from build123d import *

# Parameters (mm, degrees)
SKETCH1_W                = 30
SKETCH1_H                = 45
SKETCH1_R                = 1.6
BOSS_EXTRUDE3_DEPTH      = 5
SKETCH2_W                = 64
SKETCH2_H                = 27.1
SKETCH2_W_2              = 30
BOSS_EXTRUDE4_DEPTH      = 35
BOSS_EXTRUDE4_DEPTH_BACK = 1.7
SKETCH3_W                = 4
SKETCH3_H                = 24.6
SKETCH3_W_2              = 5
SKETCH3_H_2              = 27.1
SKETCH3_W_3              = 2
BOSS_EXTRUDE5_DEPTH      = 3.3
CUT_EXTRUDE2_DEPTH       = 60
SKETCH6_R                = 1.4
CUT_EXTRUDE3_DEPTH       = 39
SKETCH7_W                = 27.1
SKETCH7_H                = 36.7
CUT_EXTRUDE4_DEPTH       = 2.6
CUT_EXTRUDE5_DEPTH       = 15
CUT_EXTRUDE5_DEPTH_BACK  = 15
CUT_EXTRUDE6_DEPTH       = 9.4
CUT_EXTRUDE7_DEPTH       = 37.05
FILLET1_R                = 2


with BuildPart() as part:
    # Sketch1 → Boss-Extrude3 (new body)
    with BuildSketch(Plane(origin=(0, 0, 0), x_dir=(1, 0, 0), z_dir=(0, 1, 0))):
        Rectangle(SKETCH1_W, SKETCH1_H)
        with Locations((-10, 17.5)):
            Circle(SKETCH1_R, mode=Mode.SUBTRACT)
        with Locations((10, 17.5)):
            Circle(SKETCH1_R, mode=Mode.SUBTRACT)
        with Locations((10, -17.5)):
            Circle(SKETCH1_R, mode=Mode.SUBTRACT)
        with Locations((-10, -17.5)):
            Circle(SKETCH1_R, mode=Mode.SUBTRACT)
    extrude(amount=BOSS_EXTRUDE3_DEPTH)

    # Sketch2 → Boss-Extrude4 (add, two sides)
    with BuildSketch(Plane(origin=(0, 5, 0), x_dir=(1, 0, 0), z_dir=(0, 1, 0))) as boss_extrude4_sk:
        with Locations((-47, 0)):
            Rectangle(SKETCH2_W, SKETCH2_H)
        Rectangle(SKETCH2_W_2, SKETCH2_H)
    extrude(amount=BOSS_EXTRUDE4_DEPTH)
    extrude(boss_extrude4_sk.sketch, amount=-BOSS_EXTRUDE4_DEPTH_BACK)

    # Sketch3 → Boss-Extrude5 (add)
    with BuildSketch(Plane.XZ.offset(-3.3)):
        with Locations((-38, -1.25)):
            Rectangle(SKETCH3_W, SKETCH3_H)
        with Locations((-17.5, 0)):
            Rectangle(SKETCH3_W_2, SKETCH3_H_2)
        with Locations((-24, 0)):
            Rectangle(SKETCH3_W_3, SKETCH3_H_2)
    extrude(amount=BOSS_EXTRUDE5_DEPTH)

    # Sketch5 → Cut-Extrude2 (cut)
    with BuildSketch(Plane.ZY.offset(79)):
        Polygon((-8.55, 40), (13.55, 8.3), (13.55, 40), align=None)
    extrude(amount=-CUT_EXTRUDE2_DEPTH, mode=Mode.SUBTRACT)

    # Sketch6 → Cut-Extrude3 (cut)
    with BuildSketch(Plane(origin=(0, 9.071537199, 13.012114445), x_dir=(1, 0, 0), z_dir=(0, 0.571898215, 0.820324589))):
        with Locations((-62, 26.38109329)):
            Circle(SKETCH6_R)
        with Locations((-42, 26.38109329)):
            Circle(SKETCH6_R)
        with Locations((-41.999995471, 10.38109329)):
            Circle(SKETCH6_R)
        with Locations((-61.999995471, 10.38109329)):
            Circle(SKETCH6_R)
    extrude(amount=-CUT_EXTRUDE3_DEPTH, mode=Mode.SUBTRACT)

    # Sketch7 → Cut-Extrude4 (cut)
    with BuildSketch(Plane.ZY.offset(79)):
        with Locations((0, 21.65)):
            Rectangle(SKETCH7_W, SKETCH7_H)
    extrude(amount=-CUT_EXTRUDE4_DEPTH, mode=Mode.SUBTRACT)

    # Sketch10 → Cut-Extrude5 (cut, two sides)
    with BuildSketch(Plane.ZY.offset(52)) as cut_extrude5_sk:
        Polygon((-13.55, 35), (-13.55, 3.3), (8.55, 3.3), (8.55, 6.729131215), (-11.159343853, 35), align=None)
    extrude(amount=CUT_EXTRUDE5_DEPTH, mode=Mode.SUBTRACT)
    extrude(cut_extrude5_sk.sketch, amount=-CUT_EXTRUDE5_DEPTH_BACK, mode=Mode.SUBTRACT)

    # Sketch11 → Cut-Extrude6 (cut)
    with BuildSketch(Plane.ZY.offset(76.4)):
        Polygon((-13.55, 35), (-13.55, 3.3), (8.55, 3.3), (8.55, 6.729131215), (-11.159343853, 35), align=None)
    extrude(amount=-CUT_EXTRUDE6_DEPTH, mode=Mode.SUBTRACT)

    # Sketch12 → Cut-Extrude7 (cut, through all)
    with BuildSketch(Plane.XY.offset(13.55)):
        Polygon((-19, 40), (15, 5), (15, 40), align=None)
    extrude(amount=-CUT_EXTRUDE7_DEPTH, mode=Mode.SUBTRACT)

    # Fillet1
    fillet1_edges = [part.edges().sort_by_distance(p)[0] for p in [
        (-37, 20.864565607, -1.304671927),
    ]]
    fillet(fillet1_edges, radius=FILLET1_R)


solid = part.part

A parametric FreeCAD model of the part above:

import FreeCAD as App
import Part
import Sketcher
from FreeCAD import Vector


def edges_at(feature, points):
    """Names of the edges that pass closest to the given points."""
    edges = feature.Shape.Edges
    near = lambda p: min(range(len(edges)), key=lambda i: edges[i].distToShape(Part.Vertex(*p))[0])
    return sorted({f"Edge{near(p) + 1}" for p in points})

doc = App.newDocument("Part")
body = doc.addObject("PartDesign::Body", "Body")

sketch1 = body.newObject("Sketcher::SketchObject", "Sketch")
sketch1.AttachmentSupport = (doc.getObject("XZ_Plane"), [""])
sketch1.MapMode = "FlatFace"
sketch1.addGeometry(Part.LineSegment(Vector(-15, -22.5, 0), Vector(-15, 22.5, 0)), False)
sketch1.addGeometry(Part.LineSegment(Vector(-15, 22.5, 0), Vector(15, 22.5, 0)), False)
sketch1.addGeometry(Part.LineSegment(Vector(15, 22.5, 0), Vector(15, -22.5, 0)), False)
sketch1.addGeometry(Part.LineSegment(Vector(15, -22.5, 0), Vector(-15, -22.5, 0)), False)
sketch1.addGeometry(Part.Circle(Vector(-10, 17.5, 0), Vector(0, 0, 1), 1.6), False)
sketch1.addGeometry(Part.Circle(Vector(10, 17.5, 0), Vector(0, 0, 1), 1.6), False)
sketch1.addGeometry(Part.Circle(Vector(-10, -17.5, 0), Vector(0, 0, 1), 1.6), False)
sketch1.addGeometry(Part.Circle(Vector(10, -17.5, 0), Vector(0, 0, 1), 1.6), False)
sketch1.addConstraint(Sketcher.Constraint("Coincident", 0, 2, 1, 1))
sketch1.addConstraint(Sketcher.Constraint("Coincident", 1, 2, 2, 1))
sketch1.addConstraint(Sketcher.Constraint("Coincident", 2, 2, 3, 1))
sketch1.addConstraint(Sketcher.Constraint("Coincident", 3, 2, 0, 1))
sketch1.addConstraint(Sketcher.Constraint("Vertical", 0))
sketch1.addConstraint(Sketcher.Constraint("Horizontal", 1))
sketch1.addConstraint(Sketcher.Constraint("Vertical", 2))
sketch1.addConstraint(Sketcher.Constraint("Horizontal", 3))
sketch1.addConstraint(Sketcher.Constraint("Equal", 4, 5))
sketch1.addConstraint(Sketcher.Constraint("Equal", 5, 6))
sketch1.addConstraint(Sketcher.Constraint("Equal", 6, 7))
sketch1.addConstraint(Sketcher.Constraint("Symmetric", 5, 3, 6, 3, -1, 1))
sketch1.addConstraint(Sketcher.Constraint("Symmetric", 4, 3, 7, 3, -1, 1))
sketch1.addConstraint(Sketcher.Constraint("Symmetric", 0, 2, 2, 2, -1, 1))
sketch1.addConstraint(Sketcher.Constraint("Symmetric", 4, 3, 5, 3, -2))
sketch1.addConstraint(Sketcher.Constraint("Diameter", 4, 3.2))
sketch1.addConstraint(Sketcher.Constraint("DistanceX", 1, 1, 1, 2, 30.0))
sketch1.addConstraint(Sketcher.Constraint("DistanceY", 0, 1, 0, 2, 45.0))
sketch1.addConstraint(Sketcher.Constraint("DistanceX", 4, 3, -1, 1, 10.0))
sketch1.addConstraint(Sketcher.Constraint("DistanceY", 6, 3, 4, 3, 35.0))
pad1 = body.newObject("PartDesign::Pad", "Pad")
pad1.Profile = sketch1
pad1.Length = 5
pad1.Reversed = True

sketch2 = body.newObject("Sketcher::SketchObject", "Sketch001")
sketch2.AttachmentSupport = (doc.getObject("XZ_Plane"), [""])
sketch2.MapMode = "FlatFace"
sketch2.AttachmentOffset = App.Placement(Vector(0, 0, -5), App.Rotation())
sketch2.addGeometry(Part.LineSegment(Vector(-79, -13.55, 0), Vector(-79, 13.55, 0)), False)
sketch2.addGeometry(Part.LineSegment(Vector(-79, 13.55, 0), Vector(15, 13.55, 0)), False)
sketch2.addGeometry(Part.LineSegment(Vector(15, 13.55, 0), Vector(15, -13.55, 0)), False)
sketch2.addGeometry(Part.LineSegment(Vector(15, -13.55, 0), Vector(-79, -13.55, 0)), False)
sketch2.addConstraint(Sketcher.Constraint("Coincident", 0, 2, 1, 1))
sketch2.addConstraint(Sketcher.Constraint("Coincident", 1, 2, 2, 1))
sketch2.addConstraint(Sketcher.Constraint("Coincident", 2, 2, 3, 1))
sketch2.addConstraint(Sketcher.Constraint("Coincident", 3, 2, 0, 1))
sketch2.addConstraint(Sketcher.Constraint("Vertical", 0))
sketch2.addConstraint(Sketcher.Constraint("Horizontal", 1))
sketch2.addConstraint(Sketcher.Constraint("Vertical", 2))
sketch2.addConstraint(Sketcher.Constraint("Horizontal", 3))
sketch2.addConstraint(Sketcher.Constraint("DistanceX", 1, 1, 1, 2, 94.0))
sketch2.addConstraint(Sketcher.Constraint("DistanceY", 0, 1, 0, 2, 27.1))
sketch2.addConstraint(Sketcher.Constraint("DistanceX", 0, 2, -1, 1, 79.0))
sketch2.addConstraint(Sketcher.Constraint("DistanceY", -1, 1, 0, 2, 13.55))
pad2 = body.newObject("PartDesign::Pad", "Pad001")
pad2.Profile = sketch2
pad2.Type = "TwoLengths"
pad2.Length = 35
pad2.Length2 = 1.7
pad2.Reversed = True

sketch3 = body.newObject("Sketcher::SketchObject", "Sketch002")
sketch3.AttachmentSupport = (doc.getObject("XZ_Plane"), [""])
sketch3.MapMode = "FlatFace"
sketch3.AttachmentOffset = App.Placement(Vector(0, 0, -3.3), App.Rotation())
sketch3.addGeometry(Part.LineSegment(Vector(-40, 11.05, 0), Vector(-40, -13.55, 0)), False)
sketch3.addGeometry(Part.LineSegment(Vector(-40, -13.55, 0), Vector(-36, -13.55, 0)), False)
sketch3.addGeometry(Part.LineSegment(Vector(-36, -13.55, 0), Vector(-36, 11.05, 0)), False)
sketch3.addGeometry(Part.LineSegment(Vector(-36, 11.05, 0), Vector(-40, 11.05, 0)), False)
sketch3.addGeometry(Part.LineSegment(Vector(-20, 13.55, 0), Vector(-20, -13.55, 0)), False)
sketch3.addGeometry(Part.LineSegment(Vector(-20, -13.55, 0), Vector(-15, -13.55, 0)), False)
sketch3.addGeometry(Part.LineSegment(Vector(-15, -13.55, 0), Vector(-15, 13.55, 0)), False)
sketch3.addGeometry(Part.LineSegment(Vector(-15, 13.55, 0), Vector(-20, 13.55, 0)), False)
sketch3.addGeometry(Part.LineSegment(Vector(-25, 13.55, 0), Vector(-25, -13.55, 0)), False)
sketch3.addGeometry(Part.LineSegment(Vector(-25, -13.55, 0), Vector(-23, -13.55, 0)), False)
sketch3.addGeometry(Part.LineSegment(Vector(-23, -13.55, 0), Vector(-23, 13.55, 0)), False)
sketch3.addGeometry(Part.LineSegment(Vector(-23, 13.55, 0), Vector(-25, 13.55, 0)), False)
sketch3.addConstraint(Sketcher.Constraint("Coincident", 0, 2, 1, 1))
sketch3.addConstraint(Sketcher.Constraint("Coincident", 1, 2, 2, 1))
sketch3.addConstraint(Sketcher.Constraint("Coincident", 2, 2, 3, 1))
sketch3.addConstraint(Sketcher.Constraint("Coincident", 3, 2, 0, 1))
sketch3.addConstraint(Sketcher.Constraint("Coincident", 4, 2, 5, 1))
sketch3.addConstraint(Sketcher.Constraint("Coincident", 5, 2, 6, 1))
sketch3.addConstraint(Sketcher.Constraint("Coincident", 6, 2, 7, 1))
sketch3.addConstraint(Sketcher.Constraint("Coincident", 7, 2, 4, 1))
sketch3.addConstraint(Sketcher.Constraint("Coincident", 8, 2, 9, 1))
sketch3.addConstraint(Sketcher.Constraint("Coincident", 9, 2, 10, 1))
sketch3.addConstraint(Sketcher.Constraint("Coincident", 10, 2, 11, 1))
sketch3.addConstraint(Sketcher.Constraint("Coincident", 11, 2, 8, 1))
sketch3.addConstraint(Sketcher.Constraint("Vertical", 0))
sketch3.addConstraint(Sketcher.Constraint("Horizontal", 1))
sketch3.addConstraint(Sketcher.Constraint("Vertical", 2))
sketch3.addConstraint(Sketcher.Constraint("Horizontal", 3))
sketch3.addConstraint(Sketcher.Constraint("Vertical", 4))
sketch3.addConstraint(Sketcher.Constraint("Horizontal", 5))
sketch3.addConstraint(Sketcher.Constraint("Vertical", 6))
sketch3.addConstraint(Sketcher.Constraint("Horizontal", 7))
sketch3.addConstraint(Sketcher.Constraint("Vertical", 8))
sketch3.addConstraint(Sketcher.Constraint("Horizontal", 9))
sketch3.addConstraint(Sketcher.Constraint("Vertical", 10))
sketch3.addConstraint(Sketcher.Constraint("Horizontal", 11))
sketch3.addConstraint(Sketcher.Constraint("Horizontal", 1, 2, 4, 2))
sketch3.addConstraint(Sketcher.Constraint("Horizontal", 5, 2, 8, 2))
sketch3.addConstraint(Sketcher.Constraint("Horizontal", 7, 2, 10, 2))
sketch3.addConstraint(Sketcher.Constraint("DistanceX", 1, 1, 1, 2, 4.0))
sketch3.addConstraint(Sketcher.Constraint("DistanceX", 5, 1, 5, 2, 5.0))
sketch3.addConstraint(Sketcher.Constraint("DistanceX", 9, 1, 9, 2, 2.0))
sketch3.addConstraint(Sketcher.Constraint("DistanceY", 0, 2, 0, 1, 24.6))
sketch3.addConstraint(Sketcher.Constraint("DistanceY", 4, 2, 4, 1, 27.1))
sketch3.addConstraint(Sketcher.Constraint("DistanceX", 0, 2, -1, 1, 40.0))
sketch3.addConstraint(Sketcher.Constraint("DistanceX", 4, 2, -1, 1, 20.0))
sketch3.addConstraint(Sketcher.Constraint("DistanceX", 8, 2, -1, 1, 25.0))
sketch3.addConstraint(Sketcher.Constraint("DistanceY", 0, 2, -1, 1, 13.55))
pad3 = body.newObject("PartDesign::Pad", "Pad002")
pad3.Profile = sketch3
pad3.Length = 3.3

sketch4 = body.newObject("Sketcher::SketchObject", "Sketch003")
sketch4.AttachmentSupport = (doc.getObject("YZ_Plane"), [""])
sketch4.MapMode = "FlatFace"
sketch4.AttachmentOffset = App.Placement(Vector(0, 0, -79), App.Rotation())
sketch4.addGeometry(Part.LineSegment(Vector(40, -8.55, 0), Vector(8.3, 13.55, 0)), False)
sketch4.addGeometry(Part.LineSegment(Vector(8.3, 13.55, 0), Vector(40, 13.55, 0)), False)
sketch4.addGeometry(Part.LineSegment(Vector(40, 13.55, 0), Vector(40, -8.55, 0)), False)
sketch4.addConstraint(Sketcher.Constraint("Coincident", 0, 2, 1, 1))
sketch4.addConstraint(Sketcher.Constraint("Coincident", 1, 2, 2, 1))
sketch4.addConstraint(Sketcher.Constraint("Coincident", 2, 2, 0, 1))
sketch4.addConstraint(Sketcher.Constraint("Horizontal", 1))
sketch4.addConstraint(Sketcher.Constraint("Vertical", 2))
sketch4.addConstraint(Sketcher.Constraint("DistanceX", 1, 1, 1, 2, 31.7))
sketch4.addConstraint(Sketcher.Constraint("DistanceY", 2, 2, 2, 1, 22.1))
sketch4.addConstraint(Sketcher.Constraint("DistanceX", -1, 1, 1, 2, 40.0))
sketch4.addConstraint(Sketcher.Constraint("DistanceY", -1, 1, 0, 2, 13.55))
pocket1 = body.newObject("PartDesign::Pocket", "Pocket")
pocket1.Profile = sketch4
pocket1.Length = 60
pocket1.Reversed = True

sketch5 = body.newObject("Sketcher::SketchObject", "Sketch004")
sketch5.Placement = App.Placement(Vector(0, 9.071537, 13.012114), App.Rotation(Vector(1, 0, 0), Vector(0, 0.820324589, -0.571898215), Vector(0, 0.571898215, 0.820324589), "ZXY"))
sketch5.addGeometry(Part.Circle(Vector(-62, 26.381093, 0), Vector(0, 0, 1), 1.4), False)
sketch5.addGeometry(Part.Circle(Vector(-42, 26.381093, 0), Vector(0, 0, 1), 1.4), False)
sketch5.addGeometry(Part.Circle(Vector(-41.999995, 10.381093, 0), Vector(0, 0, 1), 1.4), False)
sketch5.addGeometry(Part.Circle(Vector(-61.999995, 10.381093, 0), Vector(0, 0, 1), 1.4), False)
sketch5.addConstraint(Sketcher.Constraint("Equal", 0, 1))
sketch5.addConstraint(Sketcher.Constraint("Equal", 1, 2))
sketch5.addConstraint(Sketcher.Constraint("Equal", 2, 3))
sketch5.addConstraint(Sketcher.Constraint("Horizontal", 0, 3, 1, 3))
sketch5.addConstraint(Sketcher.Constraint("Horizontal", 2, 3, 3, 3))
sketch5.addConstraint(Sketcher.Constraint("Diameter", 0, 2.8))
sketch5.addConstraint(Sketcher.Constraint("DistanceX", 0, 3, -1, 1, 62.0))
sketch5.addConstraint(Sketcher.Constraint("DistanceX", 1, 3, -1, 1, 42.0))
sketch5.addConstraint(Sketcher.Constraint("DistanceY", 2, 3, 1, 3, 16.0))
sketch5.addConstraint(Sketcher.Constraint("DistanceX", 3, 3, 2, 3, 20.0))
sketch5.addConstraint(Sketcher.Constraint("DistanceY", -1, 1, 0, 3, 26.381093))
sketch5.addConstraint(Sketcher.Constraint("DistanceX", 2, 3, -1, 1, 41.999995))
pocket2 = body.newObject("PartDesign::Pocket", "Pocket001")
pocket2.Profile = sketch5
pocket2.Length = 39

sketch6 = body.newObject("Sketcher::SketchObject", "Sketch005")
sketch6.AttachmentSupport = (doc.getObject("YZ_Plane"), [""])
sketch6.MapMode = "FlatFace"
sketch6.AttachmentOffset = App.Placement(Vector(0, 0, -79), App.Rotation())
sketch6.addGeometry(Part.LineSegment(Vector(40, -13.55, 0), Vector(3.3, -13.55, 0)), False)
sketch6.addGeometry(Part.LineSegment(Vector(3.3, -13.55, 0), Vector(3.3, 13.55, 0)), False)
sketch6.addGeometry(Part.LineSegment(Vector(3.3, 13.55, 0), Vector(40, 13.55, 0)), False)
sketch6.addGeometry(Part.LineSegment(Vector(40, 13.55, 0), Vector(40, -13.55, 0)), False)
sketch6.addConstraint(Sketcher.Constraint("Coincident", 0, 2, 1, 1))
sketch6.addConstraint(Sketcher.Constraint("Coincident", 1, 2, 2, 1))
sketch6.addConstraint(Sketcher.Constraint("Coincident", 2, 2, 3, 1))
sketch6.addConstraint(Sketcher.Constraint("Coincident", 3, 2, 0, 1))
sketch6.addConstraint(Sketcher.Constraint("Horizontal", 0))
sketch6.addConstraint(Sketcher.Constraint("Vertical", 1))
sketch6.addConstraint(Sketcher.Constraint("Horizontal", 2))
sketch6.addConstraint(Sketcher.Constraint("Vertical", 3))
sketch6.addConstraint(Sketcher.Constraint("DistanceX", 0, 2, 0, 1, 36.7))
sketch6.addConstraint(Sketcher.Constraint("DistanceY", 1, 1, 1, 2, 27.1))
sketch6.addConstraint(Sketcher.Constraint("DistanceX", -1, 1, 2, 2, 40.0))
sketch6.addConstraint(Sketcher.Constraint("DistanceY", 0, 2, -1, 1, 13.55))
pocket3 = body.newObject("PartDesign::Pocket", "Pocket002")
pocket3.Profile = sketch6
pocket3.Length = 2.6
pocket3.Reversed = True

sketch7 = body.newObject("Sketcher::SketchObject", "Sketch006")
sketch7.AttachmentSupport = (doc.getObject("YZ_Plane"), [""])
sketch7.MapMode = "FlatFace"
sketch7.AttachmentOffset = App.Placement(Vector(0, 0, -52), App.Rotation())
sketch7.addGeometry(Part.LineSegment(Vector(35, -13.55, 0), Vector(3.3, -13.55, 0)), False)
sketch7.addGeometry(Part.LineSegment(Vector(3.3, -13.55, 0), Vector(3.3, 8.55, 0)), False)
sketch7.addGeometry(Part.LineSegment(Vector(3.3, 8.55, 0), Vector(6.729131, 8.55, 0)), False)
sketch7.addGeometry(Part.LineSegment(Vector(6.729131, 8.55, 0), Vector(35, -11.159344, 0)), False)
sketch7.addGeometry(Part.LineSegment(Vector(35, -11.159344, 0), Vector(35, -13.55, 0)), False)
sketch7.addConstraint(Sketcher.Constraint("Coincident", 0, 2, 1, 1))
sketch7.addConstraint(Sketcher.Constraint("Coincident", 1, 2, 2, 1))
sketch7.addConstraint(Sketcher.Constraint("Coincident", 2, 2, 3, 1))
sketch7.addConstraint(Sketcher.Constraint("Coincident", 3, 2, 4, 1))
sketch7.addConstraint(Sketcher.Constraint("Coincident", 4, 2, 0, 1))
sketch7.addConstraint(Sketcher.Constraint("Horizontal", 0))
sketch7.addConstraint(Sketcher.Constraint("Vertical", 1))
sketch7.addConstraint(Sketcher.Constraint("Horizontal", 2))
sketch7.addConstraint(Sketcher.Constraint("Vertical", 4))
sketch7.addConstraint(Sketcher.Constraint("DistanceX", 0, 2, 0, 1, 31.7))
sketch7.addConstraint(Sketcher.Constraint("DistanceY", 1, 1, 1, 2, 22.1))
sketch7.addConstraint(Sketcher.Constraint("DistanceX", -1, 1, 3, 2, 35.0))
sketch7.addConstraint(Sketcher.Constraint("DistanceY", 0, 2, -1, 1, 13.55))
sketch7.addConstraint(Sketcher.Constraint("DistanceX", 2, 1, 2, 2, 3.429131))
sketch7.addConstraint(Sketcher.Constraint("DistanceY", 4, 2, 4, 1, 2.390656))
pocket4 = body.newObject("PartDesign::Pocket", "Pocket003")
pocket4.Profile = sketch7
pocket4.Type = "TwoLengths"
pocket4.Length = 15
pocket4.Length2 = 15

sketch8 = body.newObject("Sketcher::SketchObject", "Sketch007")
sketch8.AttachmentSupport = (doc.getObject("YZ_Plane"), [""])
sketch8.MapMode = "FlatFace"
sketch8.AttachmentOffset = App.Placement(Vector(0, 0, -76.4), App.Rotation())
sketch8.addGeometry(Part.LineSegment(Vector(35, -13.55, 0), Vector(3.3, -13.55, 0)), False)
sketch8.addGeometry(Part.LineSegment(Vector(3.3, -13.55, 0), Vector(3.3, 8.55, 0)), False)
sketch8.addGeometry(Part.LineSegment(Vector(3.3, 8.55, 0), Vector(6.729131, 8.55, 0)), False)
sketch8.addGeometry(Part.LineSegment(Vector(6.729131, 8.55, 0), Vector(35, -11.159344, 0)), False)
sketch8.addGeometry(Part.LineSegment(Vector(35, -11.159344, 0), Vector(35, -13.55, 0)), False)
sketch8.addConstraint(Sketcher.Constraint("Coincident", 0, 2, 1, 1))
sketch8.addConstraint(Sketcher.Constraint("Coincident", 1, 2, 2, 1))
sketch8.addConstraint(Sketcher.Constraint("Coincident", 2, 2, 3, 1))
sketch8.addConstraint(Sketcher.Constraint("Coincident", 3, 2, 4, 1))
sketch8.addConstraint(Sketcher.Constraint("Coincident", 4, 2, 0, 1))
sketch8.addConstraint(Sketcher.Constraint("Horizontal", 0))
sketch8.addConstraint(Sketcher.Constraint("Vertical", 1))
sketch8.addConstraint(Sketcher.Constraint("Horizontal", 2))
sketch8.addConstraint(Sketcher.Constraint("Vertical", 4))
sketch8.addConstraint(Sketcher.Constraint("DistanceX", 0, 2, 0, 1, 31.7))
sketch8.addConstraint(Sketcher.Constraint("DistanceY", 1, 1, 1, 2, 22.1))
sketch8.addConstraint(Sketcher.Constraint("DistanceX", -1, 1, 3, 2, 35.0))
sketch8.addConstraint(Sketcher.Constraint("DistanceY", 0, 2, -1, 1, 13.55))
sketch8.addConstraint(Sketcher.Constraint("DistanceX", 2, 1, 2, 2, 3.429131))
sketch8.addConstraint(Sketcher.Constraint("DistanceY", 4, 2, 4, 1, 2.390656))
pocket5 = body.newObject("PartDesign::Pocket", "Pocket004")
pocket5.Profile = sketch8
pocket5.Length = 9.4
pocket5.Reversed = True

sketch9 = body.newObject("Sketcher::SketchObject", "Sketch008")
sketch9.AttachmentSupport = (doc.getObject("XY_Plane"), [""])
sketch9.MapMode = "FlatFace"
sketch9.AttachmentOffset = App.Placement(Vector(0, 0, 13.55), App.Rotation())
sketch9.addGeometry(Part.LineSegment(Vector(-19, 40, 0), Vector(15, 5, 0)), False)
sketch9.addGeometry(Part.LineSegment(Vector(15, 5, 0), Vector(15, 40, 0)), False)
sketch9.addGeometry(Part.LineSegment(Vector(15, 40, 0), Vector(-19, 40, 0)), False)
sketch9.addConstraint(Sketcher.Constraint("Coincident", 0, 2, 1, 1))
sketch9.addConstraint(Sketcher.Constraint("Coincident", 1, 2, 2, 1))
sketch9.addConstraint(Sketcher.Constraint("Coincident", 2, 2, 0, 1))
sketch9.addConstraint(Sketcher.Constraint("Vertical", 1))
sketch9.addConstraint(Sketcher.Constraint("Horizontal", 2))
sketch9.addConstraint(Sketcher.Constraint("DistanceX", 2, 2, 2, 1, 34.0))
sketch9.addConstraint(Sketcher.Constraint("DistanceY", 1, 1, 1, 2, 35.0))
sketch9.addConstraint(Sketcher.Constraint("DistanceX", -1, 1, 0, 2, 15.0))
sketch9.addConstraint(Sketcher.Constraint("DistanceY", -1, 1, 0, 2, 5.0))
pocket6 = body.newObject("PartDesign::Pocket", "Pocket005")
pocket6.Profile = sketch9
pocket6.Type = "ThroughAll"
doc.recompute()

fillet = body.newObject("PartDesign::Fillet", "Fillet")
fillet.Base = (pocket6, edges_at(pocket6, [(-37, 20.865, -1.305)]))
fillet.Radius = 2

doc.recompute()
